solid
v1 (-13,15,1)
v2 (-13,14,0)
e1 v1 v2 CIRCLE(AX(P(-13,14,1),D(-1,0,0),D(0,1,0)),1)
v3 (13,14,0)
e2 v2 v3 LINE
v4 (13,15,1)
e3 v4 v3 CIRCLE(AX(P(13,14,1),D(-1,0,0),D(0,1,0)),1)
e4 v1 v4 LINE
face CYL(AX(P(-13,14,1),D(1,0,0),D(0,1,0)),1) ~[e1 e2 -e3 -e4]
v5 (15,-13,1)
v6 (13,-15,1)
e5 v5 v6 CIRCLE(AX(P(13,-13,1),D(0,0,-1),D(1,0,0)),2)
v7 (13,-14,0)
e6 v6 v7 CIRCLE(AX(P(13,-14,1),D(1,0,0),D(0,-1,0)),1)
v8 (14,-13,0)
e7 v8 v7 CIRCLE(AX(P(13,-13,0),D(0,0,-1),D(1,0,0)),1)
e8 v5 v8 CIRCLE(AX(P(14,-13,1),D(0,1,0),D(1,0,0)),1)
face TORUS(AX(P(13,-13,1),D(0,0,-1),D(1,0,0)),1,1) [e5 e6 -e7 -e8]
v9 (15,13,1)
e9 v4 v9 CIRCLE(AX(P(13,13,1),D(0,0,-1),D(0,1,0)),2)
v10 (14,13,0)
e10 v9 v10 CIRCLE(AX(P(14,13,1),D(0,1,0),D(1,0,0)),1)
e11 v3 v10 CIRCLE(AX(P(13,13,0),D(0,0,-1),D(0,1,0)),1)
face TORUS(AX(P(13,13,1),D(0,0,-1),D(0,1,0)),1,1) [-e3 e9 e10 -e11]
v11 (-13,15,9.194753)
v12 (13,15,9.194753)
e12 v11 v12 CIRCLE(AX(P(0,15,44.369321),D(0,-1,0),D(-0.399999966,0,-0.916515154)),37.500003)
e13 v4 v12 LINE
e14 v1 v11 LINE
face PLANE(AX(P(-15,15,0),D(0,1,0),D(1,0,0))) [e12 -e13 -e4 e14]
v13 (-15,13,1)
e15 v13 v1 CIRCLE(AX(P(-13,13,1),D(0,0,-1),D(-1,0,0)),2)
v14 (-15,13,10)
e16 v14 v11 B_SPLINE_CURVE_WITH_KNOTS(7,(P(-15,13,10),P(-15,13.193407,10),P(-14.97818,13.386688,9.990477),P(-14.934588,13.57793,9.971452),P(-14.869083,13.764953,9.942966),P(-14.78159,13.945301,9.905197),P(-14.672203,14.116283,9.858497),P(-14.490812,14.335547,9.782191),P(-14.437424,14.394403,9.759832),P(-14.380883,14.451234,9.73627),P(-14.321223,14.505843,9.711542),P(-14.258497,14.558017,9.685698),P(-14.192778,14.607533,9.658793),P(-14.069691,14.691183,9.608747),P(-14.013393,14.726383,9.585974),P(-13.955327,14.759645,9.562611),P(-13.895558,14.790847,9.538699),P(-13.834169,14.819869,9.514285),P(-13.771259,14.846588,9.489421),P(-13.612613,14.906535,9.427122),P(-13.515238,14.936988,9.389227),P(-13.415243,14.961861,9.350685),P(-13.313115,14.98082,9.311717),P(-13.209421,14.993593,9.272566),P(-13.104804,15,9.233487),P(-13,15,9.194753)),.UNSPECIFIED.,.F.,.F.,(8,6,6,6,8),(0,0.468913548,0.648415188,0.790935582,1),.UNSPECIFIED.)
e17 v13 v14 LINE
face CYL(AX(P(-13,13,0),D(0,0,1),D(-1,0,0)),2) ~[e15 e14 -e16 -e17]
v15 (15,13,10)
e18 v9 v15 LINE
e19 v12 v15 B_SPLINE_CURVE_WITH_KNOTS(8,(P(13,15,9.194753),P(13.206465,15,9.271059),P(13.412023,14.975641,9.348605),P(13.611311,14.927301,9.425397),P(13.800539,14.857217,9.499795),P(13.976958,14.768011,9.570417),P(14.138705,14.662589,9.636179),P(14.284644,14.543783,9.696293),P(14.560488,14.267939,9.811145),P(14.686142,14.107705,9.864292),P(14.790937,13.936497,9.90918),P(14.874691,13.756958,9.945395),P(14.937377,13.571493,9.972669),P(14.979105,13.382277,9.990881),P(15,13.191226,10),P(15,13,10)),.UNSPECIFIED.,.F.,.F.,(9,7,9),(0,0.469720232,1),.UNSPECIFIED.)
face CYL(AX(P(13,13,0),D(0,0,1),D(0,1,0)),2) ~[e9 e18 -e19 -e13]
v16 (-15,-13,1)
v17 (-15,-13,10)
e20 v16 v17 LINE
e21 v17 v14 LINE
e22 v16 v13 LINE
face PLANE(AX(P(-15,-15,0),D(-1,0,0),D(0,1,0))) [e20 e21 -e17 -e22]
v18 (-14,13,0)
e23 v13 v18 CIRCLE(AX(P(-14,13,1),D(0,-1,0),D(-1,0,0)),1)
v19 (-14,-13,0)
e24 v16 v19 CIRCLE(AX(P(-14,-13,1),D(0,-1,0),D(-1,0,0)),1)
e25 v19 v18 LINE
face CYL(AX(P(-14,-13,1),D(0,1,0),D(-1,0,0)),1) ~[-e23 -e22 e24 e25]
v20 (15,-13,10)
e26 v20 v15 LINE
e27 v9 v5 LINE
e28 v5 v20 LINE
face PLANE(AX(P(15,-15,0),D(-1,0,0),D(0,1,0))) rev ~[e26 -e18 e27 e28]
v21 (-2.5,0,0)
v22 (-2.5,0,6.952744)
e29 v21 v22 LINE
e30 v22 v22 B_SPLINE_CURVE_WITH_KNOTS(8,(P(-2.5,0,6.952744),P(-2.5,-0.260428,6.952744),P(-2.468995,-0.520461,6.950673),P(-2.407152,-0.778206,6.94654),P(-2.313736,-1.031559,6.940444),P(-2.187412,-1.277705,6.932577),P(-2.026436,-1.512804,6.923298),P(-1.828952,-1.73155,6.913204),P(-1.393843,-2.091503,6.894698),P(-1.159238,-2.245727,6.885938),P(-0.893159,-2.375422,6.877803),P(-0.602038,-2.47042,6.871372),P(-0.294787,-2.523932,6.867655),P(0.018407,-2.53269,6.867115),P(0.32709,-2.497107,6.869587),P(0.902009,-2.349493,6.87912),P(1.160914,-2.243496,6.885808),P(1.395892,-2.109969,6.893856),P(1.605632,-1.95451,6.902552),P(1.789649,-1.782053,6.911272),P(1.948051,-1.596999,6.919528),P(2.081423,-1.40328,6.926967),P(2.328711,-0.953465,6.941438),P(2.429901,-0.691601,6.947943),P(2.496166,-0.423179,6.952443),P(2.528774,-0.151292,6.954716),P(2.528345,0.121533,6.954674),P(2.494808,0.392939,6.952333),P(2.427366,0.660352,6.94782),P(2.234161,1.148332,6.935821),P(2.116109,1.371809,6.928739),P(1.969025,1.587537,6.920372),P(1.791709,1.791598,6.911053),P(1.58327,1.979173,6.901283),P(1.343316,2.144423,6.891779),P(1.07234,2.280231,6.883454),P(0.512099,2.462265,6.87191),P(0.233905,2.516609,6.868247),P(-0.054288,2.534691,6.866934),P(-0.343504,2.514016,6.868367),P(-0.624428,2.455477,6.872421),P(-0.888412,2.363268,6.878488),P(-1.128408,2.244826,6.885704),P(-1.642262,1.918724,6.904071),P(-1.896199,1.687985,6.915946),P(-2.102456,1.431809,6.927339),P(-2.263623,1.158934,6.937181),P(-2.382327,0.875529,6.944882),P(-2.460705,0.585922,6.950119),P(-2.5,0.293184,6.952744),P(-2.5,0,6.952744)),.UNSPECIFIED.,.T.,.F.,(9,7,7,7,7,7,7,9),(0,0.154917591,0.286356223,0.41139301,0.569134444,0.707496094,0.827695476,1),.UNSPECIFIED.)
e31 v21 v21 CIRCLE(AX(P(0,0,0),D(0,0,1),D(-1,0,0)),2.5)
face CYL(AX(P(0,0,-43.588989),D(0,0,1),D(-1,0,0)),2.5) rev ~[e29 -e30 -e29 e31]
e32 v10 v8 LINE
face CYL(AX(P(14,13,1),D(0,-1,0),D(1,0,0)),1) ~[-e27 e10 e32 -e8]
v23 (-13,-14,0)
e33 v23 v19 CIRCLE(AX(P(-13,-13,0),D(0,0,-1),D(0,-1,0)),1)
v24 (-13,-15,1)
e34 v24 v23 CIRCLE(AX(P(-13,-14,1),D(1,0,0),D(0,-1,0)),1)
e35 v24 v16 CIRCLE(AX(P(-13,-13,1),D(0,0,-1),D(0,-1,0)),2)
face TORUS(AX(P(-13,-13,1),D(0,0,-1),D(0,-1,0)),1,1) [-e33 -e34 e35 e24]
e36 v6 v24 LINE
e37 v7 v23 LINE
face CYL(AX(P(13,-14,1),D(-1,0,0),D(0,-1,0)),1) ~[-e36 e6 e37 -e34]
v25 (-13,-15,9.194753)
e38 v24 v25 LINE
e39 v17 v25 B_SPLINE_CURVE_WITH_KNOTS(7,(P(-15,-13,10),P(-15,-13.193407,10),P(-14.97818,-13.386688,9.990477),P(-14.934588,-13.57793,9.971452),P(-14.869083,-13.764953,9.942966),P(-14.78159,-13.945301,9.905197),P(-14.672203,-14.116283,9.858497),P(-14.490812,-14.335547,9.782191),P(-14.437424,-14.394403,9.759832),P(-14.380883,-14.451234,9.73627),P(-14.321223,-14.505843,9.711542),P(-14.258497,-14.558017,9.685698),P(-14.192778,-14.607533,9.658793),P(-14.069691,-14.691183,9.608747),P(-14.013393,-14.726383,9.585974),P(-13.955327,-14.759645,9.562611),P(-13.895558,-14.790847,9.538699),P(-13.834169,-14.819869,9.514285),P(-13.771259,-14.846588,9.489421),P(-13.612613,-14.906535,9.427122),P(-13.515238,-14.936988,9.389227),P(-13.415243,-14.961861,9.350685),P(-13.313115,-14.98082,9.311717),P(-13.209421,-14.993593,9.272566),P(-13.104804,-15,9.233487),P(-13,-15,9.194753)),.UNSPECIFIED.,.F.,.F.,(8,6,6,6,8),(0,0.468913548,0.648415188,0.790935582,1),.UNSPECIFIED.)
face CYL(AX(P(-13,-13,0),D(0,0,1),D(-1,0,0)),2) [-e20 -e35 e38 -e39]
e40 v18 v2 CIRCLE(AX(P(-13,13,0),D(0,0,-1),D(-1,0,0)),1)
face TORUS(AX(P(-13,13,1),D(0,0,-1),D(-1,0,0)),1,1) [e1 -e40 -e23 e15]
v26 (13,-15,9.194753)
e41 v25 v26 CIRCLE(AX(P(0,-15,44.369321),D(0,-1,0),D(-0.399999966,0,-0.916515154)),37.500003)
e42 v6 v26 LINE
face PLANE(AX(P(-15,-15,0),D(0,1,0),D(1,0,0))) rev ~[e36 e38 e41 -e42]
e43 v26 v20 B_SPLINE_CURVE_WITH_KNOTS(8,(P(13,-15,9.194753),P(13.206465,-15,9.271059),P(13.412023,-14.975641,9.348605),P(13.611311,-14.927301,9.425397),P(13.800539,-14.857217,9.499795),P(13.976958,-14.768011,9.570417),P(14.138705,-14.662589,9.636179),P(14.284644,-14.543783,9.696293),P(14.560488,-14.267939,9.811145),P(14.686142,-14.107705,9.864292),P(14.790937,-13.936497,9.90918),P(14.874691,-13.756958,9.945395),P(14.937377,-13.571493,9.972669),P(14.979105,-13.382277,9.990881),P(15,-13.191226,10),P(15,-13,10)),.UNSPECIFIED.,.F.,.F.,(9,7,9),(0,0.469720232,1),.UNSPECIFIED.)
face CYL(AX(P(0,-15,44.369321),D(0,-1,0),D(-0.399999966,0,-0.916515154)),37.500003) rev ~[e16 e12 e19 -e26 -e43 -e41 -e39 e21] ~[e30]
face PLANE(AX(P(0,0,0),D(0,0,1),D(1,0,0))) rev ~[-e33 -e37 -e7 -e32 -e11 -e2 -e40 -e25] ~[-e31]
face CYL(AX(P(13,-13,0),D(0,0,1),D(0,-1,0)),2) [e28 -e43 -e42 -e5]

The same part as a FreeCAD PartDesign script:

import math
import FreeCAD as App
import Part
import Sketcher

V = App.Vector


def edges_at(feature, points):
    """Names of the edges that pass closest to the given points."""
    edges = feature.Shape.Edges
    near = lambda p: min(range(len(edges)), key=lambda i: edges[i].distToShape(Part.Vertex(*p))[0])
    return sorted({f"Edge{near(p) + 1}" for p in points})


def add_polygon(sketch, points):
    """Adds a closed chain of lines whose ends are joined by coincident constraints."""
    first, n = sketch.GeometryCount, len(points)
    for a, b in zip(points, points[1:] + points[:1]):
        sketch.addGeometry(Part.LineSegment(App.Vector(*a, 0), App.Vector(*b, 0)), False)
    for i in range(n):
        sketch.addConstraint(Sketcher.Constraint("Coincident", first + i, 2, first + (i + 1) % n, 1))

doc = App.newDocument("Part")
body = doc.addObject("PartDesign::Body", "Body")

sketch1 = doc.addObject("Sketcher::SketchObject", "Sketch")
body.addObject(sketch1)
sketch1.AttachmentSupport = (doc.XY_Plane, [""])
sketch1.MapMode = "FlatFace"
add_polygon(sketch1, [(-15, 15), (-15, -15), (15, -15), (15, 15)])
sketch1.addConstraint(Sketcher.Constraint("Vertical", 0))
sketch1.addConstraint(Sketcher.Constraint("Horizontal", 1))
sketch1.addConstraint(Sketcher.Constraint("Vertical", 2))
sketch1.addConstraint(Sketcher.Constraint("Horizontal", 3))
sketch1.addConstraint(Sketcher.Constraint("Symmetric", 0, 2, 2, 2, -1, 1))
sketch1.addConstraint(Sketcher.Constraint("Equal", 3, 0))
sketch1.addConstraint(Sketcher.Constraint("DistanceX", 1, 1, 1, 2, 30.0))
pad1 = doc.addObject("PartDesign::Pad", "Pad")
body.addObject(pad1)
pad1.Profile = sketch1
pad1.Length = 10

sketch2 = doc.addObject("Sketcher::SketchObject", "Sketch001")
body.addObject(sketch2)
sketch2.AttachmentSupport = (doc.XZ_Plane, [""])
sketch2.MapMode = "FlatFace"
sketch2.AttachmentOffset = App.Placement(V(0, 0, 15), App.Rotation())
sketch2.addGeometry(Part.LineSegment(V(15, 10, 0), V(-15, 10, 0)), False)
sketch2.addGeometry(Part.ArcOfCircle(Part.Circle(V(0, 44.369321, 0), V(0, 0, 1), 37.500003), math.radians(-113.578176), math.radians(-66.421824)), False)
sketch2.addConstraint(Sketcher.Constraint("Coincident", 0, 1, 1, 2))
sketch2.addConstraint(Sketcher.Constraint("Coincident", 1, 1, 0, 2))
sketch2.addConstraint(Sketcher.Constraint("Horizontal", 0))
sketch2.addConstraint(Sketcher.Constraint("PointOnObject", 1, 3, -2))
sketch2.addConstraint(Sketcher.Constraint("DistanceX", 0, 2, 0, 1, 30.0))
sketch2.addConstraint(Sketcher.Constraint("DistanceY", -1, 1, 0, 1, 10.0))
sketch2.addConstraint(Sketcher.Constraint("Radius", 1, 37.500003))
pocket1 = doc.addObject("PartDesign::Pocket", "Pocket")
body.addObject(pocket1)
pocket1.Profile = sketch2
pocket1.Length = 50

sketch3 = doc.addObject("Sketcher::SketchObject", "Sketch002")
body.addObject(sketch3)
sketch3.AttachmentSupport = (doc.XY_Plane, [""])
sketch3.MapMode = "FlatFace"
sketch3.addGeometry(Part.Circle(V(0, 0, 0), V(0, 0, 1), 2.5), False)
sketch3.addConstraint(Sketcher.Constraint("Coincident", 0, 3, -1, 1))
sketch3.addConstraint(Sketcher.Constraint("Diameter", 0, 5.0))
doc.recompute()
hole = doc.addObject("PartDesign::Hole", "Hole")
body.addObject(hole)
hole.Profile = sketch3
hole.ThreadType = "None"
hole.Diameter = 5
hole.DepthType = "ThroughAll"
hole.Reversed = True
doc.recompute()

fillet = doc.addObject("PartDesign::Fillet", "Fillet")
body.addObject(fillet)
fillet.Base = (hole, edges_at(hole, [
    (-15, -15, 5),
    (15, -15, 5),
    (15, 15, 5),
    (-15, 15, 5),
]))
fillet.Radius = 2
doc.recompute()

fillet2 = doc.addObject("PartDesign::Fillet", "Fillet001")
body.addObject(fillet2)
fillet2.Base = (fillet, edges_at(fillet, [(-15, 0, 0)]))
fillet2.Radius = 1

doc.recompute()
